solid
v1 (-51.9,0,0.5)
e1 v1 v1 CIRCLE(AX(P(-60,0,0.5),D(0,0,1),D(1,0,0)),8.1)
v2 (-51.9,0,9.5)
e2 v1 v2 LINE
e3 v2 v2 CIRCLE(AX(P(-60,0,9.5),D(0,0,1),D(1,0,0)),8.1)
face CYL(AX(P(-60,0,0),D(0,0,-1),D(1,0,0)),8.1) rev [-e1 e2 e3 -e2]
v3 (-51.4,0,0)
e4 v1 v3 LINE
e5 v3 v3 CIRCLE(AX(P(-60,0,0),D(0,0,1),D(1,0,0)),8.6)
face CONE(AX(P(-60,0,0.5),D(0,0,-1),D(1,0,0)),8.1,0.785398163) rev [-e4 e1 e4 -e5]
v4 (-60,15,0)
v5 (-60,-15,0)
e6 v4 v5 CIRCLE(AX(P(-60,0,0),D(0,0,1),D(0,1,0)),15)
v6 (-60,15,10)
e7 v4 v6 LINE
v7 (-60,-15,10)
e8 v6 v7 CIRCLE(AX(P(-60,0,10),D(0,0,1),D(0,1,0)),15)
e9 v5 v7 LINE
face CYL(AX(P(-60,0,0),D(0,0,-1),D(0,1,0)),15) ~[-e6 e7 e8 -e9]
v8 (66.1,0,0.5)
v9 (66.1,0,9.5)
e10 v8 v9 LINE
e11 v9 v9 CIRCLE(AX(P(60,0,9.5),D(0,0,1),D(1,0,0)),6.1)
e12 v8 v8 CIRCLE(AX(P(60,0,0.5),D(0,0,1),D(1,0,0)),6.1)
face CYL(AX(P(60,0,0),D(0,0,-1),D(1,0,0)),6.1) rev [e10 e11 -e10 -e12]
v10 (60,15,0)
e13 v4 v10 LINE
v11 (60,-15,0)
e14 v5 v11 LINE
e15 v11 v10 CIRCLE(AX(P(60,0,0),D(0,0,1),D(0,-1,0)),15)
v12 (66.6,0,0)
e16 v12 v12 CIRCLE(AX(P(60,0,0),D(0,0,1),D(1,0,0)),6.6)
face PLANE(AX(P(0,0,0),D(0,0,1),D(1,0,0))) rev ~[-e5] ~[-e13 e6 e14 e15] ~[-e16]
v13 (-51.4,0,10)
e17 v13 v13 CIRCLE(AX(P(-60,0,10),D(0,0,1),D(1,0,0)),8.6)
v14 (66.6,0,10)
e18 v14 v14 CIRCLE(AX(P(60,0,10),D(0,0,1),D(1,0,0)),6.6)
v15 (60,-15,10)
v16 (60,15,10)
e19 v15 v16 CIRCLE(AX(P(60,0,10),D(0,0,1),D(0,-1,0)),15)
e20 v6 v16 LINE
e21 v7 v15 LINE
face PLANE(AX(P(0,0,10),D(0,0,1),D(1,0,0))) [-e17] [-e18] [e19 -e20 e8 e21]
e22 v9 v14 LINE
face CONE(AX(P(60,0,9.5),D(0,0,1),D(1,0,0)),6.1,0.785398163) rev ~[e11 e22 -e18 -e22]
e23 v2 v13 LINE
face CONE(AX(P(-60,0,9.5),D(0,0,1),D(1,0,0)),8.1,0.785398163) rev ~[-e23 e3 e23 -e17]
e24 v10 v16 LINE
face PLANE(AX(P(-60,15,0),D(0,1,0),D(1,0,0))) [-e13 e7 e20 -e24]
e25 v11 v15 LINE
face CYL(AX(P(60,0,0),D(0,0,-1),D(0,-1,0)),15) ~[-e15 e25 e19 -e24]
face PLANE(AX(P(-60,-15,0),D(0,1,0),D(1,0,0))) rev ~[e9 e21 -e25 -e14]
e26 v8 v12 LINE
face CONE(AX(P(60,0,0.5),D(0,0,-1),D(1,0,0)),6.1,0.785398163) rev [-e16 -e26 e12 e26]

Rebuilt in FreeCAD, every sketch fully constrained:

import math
import FreeCAD as App
import Part
import Sketcher
from FreeCAD import Vector


def edges_at(feature, points):
    """Names of the edges that pass closest to the given points."""
    edges = feature.Shape.Edges
    near = lambda p: min(range(len(edges)), key=lambda i: edges[i].distToShape(Part.Vertex(*p))[0])
    return sorted({f"Edge{near(p) + 1}" for p in points})

doc = App.newDocument("Part")
body = doc.addObject("PartDesign::Body", "Body")

sketch1 = body.newObject("Sketcher::SketchObject", "Sketch")
sketch1.AttachmentSupport = (doc.getObject("XY_Plane"), [""])
sketch1.MapMode = "FlatFace"
sketch1.addGeometry(Part.ArcOfCircle(Part.Circle(Vector(-60, 0, 0), Vector(0, 0, 1), 15), math.radians(90), math.radians(270)), False)
sketch1.addGeometry(Part.LineSegment(Vector(-60, -15, 0), Vector(60, -15, 0)), False)
sketch1.addGeometry(Part.ArcOfCircle(Part.Circle(Vector(60, 0, 0), Vector(0, 0, 1), 15), math.radians(-90), math.radians(90)), False)
sketch1.addGeometry(Part.LineSegment(Vector(60, 15, 0), Vector(-60, 15, 0)), False)
sketch1.addGeometry(Part.Circle(Vector(-60, 0, 0), Vector(0, 0, 1), 8), False)
sketch1.addGeometry(Part.Circle(Vector(60, 0, 0), Vector(0, 0, 1), 6), False)
sketch1.addConstraint(Sketcher.Constraint("Tangent", 0, 2, 1, 1))
sketch1.addConstraint(Sketcher.Constraint("Tangent", 1, 2, 2, 1))
sketch1.addConstraint(Sketcher.Constraint("Tangent", 2, 2, 3, 1))
sketch1.addConstraint(Sketcher.Constraint("Tangent", 3, 2, 0, 1))
sketch1.addConstraint(Sketcher.Constraint("Horizontal", 1))
sketch1.addConstraint(Sketcher.Constraint("Horizontal", 3))
sketch1.addConstraint(Sketcher.Constraint("Coincident", 4, 3, 0, 3))
sketch1.addConstraint(Sketcher.Constraint("Coincident", 5, 3, 2, 3))
sketch1.addConstraint(Sketcher.Constraint("Symmetric", 0, 3, 2, 3, -1, 1))
sketch1.addConstraint(Sketcher.Constraint("Radius", 0, 15.0))
sketch1.addConstraint(Sketcher.Constraint("Diameter", 4, 16.2))
sketch1.addConstraint(Sketcher.Constraint("Diameter", 5, 12.2))
sketch1.addConstraint(Sketcher.Constraint("DistanceX", 1, 1, 1, 2, 120.0))
pad1 = body.newObject("PartDesign::Pad", "Pad")
pad1.Profile = sketch1
pad1.Length = 10
doc.recompute()

chamfer = body.newObject("PartDesign::Chamfer", "Chamfer")
chamfer.Base = (pad1, edges_at(pad1, [
    (53.9, 0, 10),
    (-68.1, 0, 10),
    (53.9, 0, 0),
    (-68.1, 0, 0),
]))
chamfer.Size = 0.5

doc.recompute()
